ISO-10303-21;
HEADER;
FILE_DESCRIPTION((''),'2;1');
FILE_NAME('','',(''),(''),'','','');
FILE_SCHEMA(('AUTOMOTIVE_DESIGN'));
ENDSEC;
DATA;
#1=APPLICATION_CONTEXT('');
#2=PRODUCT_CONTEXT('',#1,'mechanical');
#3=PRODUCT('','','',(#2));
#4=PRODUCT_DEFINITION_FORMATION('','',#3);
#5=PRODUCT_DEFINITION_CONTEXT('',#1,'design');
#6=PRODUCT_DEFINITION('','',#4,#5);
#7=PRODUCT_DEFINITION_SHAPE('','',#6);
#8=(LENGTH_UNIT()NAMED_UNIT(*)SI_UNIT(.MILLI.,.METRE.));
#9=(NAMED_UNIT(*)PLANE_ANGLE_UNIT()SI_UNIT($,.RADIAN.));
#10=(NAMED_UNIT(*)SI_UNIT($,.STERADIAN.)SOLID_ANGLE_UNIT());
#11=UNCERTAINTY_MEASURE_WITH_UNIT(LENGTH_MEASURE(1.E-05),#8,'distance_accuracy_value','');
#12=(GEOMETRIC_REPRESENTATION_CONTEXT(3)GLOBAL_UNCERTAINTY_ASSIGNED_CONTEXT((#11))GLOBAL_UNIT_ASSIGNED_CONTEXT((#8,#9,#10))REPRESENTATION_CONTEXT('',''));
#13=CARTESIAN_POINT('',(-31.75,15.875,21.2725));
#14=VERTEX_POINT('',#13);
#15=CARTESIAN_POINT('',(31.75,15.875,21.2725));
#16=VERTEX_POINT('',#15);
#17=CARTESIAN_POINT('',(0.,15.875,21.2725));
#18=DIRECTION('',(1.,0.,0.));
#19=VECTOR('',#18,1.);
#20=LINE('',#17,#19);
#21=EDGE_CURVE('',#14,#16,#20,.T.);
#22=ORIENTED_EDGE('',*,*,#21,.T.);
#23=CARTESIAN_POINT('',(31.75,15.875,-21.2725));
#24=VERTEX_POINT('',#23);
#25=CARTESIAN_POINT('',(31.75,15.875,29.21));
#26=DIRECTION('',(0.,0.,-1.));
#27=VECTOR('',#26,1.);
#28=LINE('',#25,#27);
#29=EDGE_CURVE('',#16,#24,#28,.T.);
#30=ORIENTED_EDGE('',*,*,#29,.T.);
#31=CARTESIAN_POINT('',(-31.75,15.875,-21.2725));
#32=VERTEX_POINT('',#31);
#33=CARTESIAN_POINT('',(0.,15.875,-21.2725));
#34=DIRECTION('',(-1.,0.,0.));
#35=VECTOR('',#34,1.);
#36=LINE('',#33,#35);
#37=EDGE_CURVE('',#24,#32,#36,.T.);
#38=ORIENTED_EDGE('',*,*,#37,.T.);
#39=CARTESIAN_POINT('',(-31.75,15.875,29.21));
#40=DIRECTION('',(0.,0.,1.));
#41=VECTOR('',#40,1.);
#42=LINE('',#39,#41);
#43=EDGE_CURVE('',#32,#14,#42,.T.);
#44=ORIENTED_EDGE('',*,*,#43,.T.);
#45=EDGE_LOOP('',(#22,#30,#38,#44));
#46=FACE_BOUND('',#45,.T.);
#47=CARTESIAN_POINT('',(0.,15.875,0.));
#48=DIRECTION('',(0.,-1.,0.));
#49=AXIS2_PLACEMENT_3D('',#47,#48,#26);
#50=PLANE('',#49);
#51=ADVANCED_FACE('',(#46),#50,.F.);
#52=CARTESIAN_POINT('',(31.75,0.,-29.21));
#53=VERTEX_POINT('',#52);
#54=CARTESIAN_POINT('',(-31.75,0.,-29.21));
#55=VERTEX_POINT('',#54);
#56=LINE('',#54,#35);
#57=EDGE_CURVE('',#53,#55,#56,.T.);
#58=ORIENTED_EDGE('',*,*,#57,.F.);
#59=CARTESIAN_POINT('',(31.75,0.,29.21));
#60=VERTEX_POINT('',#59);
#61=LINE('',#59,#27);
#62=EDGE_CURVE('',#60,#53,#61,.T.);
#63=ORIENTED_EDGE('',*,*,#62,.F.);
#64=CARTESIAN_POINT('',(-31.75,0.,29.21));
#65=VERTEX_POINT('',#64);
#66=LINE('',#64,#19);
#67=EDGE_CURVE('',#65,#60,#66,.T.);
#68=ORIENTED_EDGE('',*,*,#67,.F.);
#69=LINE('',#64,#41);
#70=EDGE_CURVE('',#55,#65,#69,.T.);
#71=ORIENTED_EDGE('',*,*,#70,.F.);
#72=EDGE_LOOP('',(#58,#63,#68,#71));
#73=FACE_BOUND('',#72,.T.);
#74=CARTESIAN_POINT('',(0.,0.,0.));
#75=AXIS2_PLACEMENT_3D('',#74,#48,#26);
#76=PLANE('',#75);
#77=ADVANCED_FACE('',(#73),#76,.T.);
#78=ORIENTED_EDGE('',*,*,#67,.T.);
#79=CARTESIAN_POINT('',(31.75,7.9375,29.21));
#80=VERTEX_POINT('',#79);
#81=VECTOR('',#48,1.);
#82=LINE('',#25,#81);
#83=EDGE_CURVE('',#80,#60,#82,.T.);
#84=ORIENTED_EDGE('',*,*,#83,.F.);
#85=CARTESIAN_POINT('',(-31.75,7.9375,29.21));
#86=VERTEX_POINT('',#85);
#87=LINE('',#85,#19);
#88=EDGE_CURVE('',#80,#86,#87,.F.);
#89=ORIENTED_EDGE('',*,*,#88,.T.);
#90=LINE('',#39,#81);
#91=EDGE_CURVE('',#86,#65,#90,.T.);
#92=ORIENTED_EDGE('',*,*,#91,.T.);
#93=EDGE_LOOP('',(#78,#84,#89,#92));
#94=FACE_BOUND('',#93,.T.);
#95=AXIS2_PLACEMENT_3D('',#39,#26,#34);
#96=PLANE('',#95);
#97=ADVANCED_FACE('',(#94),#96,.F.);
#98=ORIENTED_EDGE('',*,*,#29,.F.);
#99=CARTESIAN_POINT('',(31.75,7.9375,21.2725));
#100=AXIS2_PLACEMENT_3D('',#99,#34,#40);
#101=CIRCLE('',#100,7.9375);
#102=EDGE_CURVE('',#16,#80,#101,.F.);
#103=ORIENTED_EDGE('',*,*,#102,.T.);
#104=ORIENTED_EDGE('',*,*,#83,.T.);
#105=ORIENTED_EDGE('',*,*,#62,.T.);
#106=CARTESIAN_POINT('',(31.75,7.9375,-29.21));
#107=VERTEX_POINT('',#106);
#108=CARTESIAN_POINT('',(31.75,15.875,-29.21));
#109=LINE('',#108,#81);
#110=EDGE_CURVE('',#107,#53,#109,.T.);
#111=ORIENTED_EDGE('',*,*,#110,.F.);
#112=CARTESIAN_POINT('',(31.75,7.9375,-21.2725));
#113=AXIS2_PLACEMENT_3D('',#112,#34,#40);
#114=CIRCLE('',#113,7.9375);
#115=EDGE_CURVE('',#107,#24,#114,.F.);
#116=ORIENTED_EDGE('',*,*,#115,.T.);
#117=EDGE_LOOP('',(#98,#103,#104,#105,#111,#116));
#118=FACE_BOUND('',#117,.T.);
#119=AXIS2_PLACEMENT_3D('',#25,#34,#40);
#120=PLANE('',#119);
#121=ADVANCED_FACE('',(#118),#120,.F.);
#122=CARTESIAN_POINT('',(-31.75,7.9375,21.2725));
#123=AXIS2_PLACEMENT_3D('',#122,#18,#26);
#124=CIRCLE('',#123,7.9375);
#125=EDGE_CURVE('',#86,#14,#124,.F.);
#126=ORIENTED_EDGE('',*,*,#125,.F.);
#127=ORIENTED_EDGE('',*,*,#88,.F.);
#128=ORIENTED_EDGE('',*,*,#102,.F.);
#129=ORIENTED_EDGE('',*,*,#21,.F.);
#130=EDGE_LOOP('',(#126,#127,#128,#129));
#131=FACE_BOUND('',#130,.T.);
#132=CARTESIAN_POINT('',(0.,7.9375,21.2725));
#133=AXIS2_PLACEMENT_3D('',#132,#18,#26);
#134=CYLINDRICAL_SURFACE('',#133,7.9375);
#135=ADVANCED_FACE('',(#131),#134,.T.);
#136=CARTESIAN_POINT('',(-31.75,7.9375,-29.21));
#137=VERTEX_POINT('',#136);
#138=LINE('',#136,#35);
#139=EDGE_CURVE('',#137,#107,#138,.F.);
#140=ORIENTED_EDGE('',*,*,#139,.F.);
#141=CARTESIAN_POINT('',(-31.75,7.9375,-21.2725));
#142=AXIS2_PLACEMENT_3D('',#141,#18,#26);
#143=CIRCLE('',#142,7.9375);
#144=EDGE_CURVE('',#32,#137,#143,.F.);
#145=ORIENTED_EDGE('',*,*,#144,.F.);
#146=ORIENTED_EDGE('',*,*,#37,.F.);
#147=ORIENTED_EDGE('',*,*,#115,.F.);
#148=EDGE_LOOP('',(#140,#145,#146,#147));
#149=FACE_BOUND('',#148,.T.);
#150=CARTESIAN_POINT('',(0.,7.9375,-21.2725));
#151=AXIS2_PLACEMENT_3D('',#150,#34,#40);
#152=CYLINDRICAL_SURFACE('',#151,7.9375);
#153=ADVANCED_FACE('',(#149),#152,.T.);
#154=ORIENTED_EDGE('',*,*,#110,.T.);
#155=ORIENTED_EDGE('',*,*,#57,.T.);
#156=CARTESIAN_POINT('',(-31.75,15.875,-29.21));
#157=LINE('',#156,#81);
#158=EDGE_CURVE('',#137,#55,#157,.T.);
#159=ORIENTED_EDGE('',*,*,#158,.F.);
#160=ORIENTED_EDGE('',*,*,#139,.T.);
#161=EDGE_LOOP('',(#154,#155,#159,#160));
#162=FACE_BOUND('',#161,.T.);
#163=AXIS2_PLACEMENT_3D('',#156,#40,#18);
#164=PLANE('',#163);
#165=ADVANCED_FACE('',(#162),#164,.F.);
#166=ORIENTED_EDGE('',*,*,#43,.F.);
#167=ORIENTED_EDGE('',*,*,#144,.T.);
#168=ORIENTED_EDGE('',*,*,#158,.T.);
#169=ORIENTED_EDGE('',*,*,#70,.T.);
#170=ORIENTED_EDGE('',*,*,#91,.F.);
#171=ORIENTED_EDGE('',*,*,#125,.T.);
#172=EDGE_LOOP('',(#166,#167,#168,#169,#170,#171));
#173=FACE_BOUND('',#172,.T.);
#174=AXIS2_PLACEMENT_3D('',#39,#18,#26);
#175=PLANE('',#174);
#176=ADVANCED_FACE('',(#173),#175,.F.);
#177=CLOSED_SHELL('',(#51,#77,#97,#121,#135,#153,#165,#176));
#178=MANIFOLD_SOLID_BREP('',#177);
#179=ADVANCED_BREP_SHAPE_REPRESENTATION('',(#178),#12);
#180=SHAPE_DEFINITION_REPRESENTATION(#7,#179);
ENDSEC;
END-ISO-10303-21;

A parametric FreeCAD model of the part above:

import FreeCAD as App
import Part
import Sketcher

V = App.Vector
Q = App.Units.Quantity


def edges_at(feature, points):
    """Names of the edges that pass closest to the given points."""
    edges = feature.Shape.Edges
    near = lambda p: min(range(len(edges)), key=lambda i: edges[i].distToShape(Part.Vertex(*p))[0])
    return sorted({f"Edge{near(p) + 1}" for p in points})


def add_polygon(sketch, points):
    """Adds a closed chain of lines whose ends are joined by coincident constraints."""
    first, n = sketch.GeometryCount, len(points)
    for a, b in zip(points, points[1:] + points[:1]):
        sketch.addGeometry(Part.LineSegment(App.Vector(*a, 0), App.Vector(*b, 0)), False)
    for i in range(n):
        sketch.addConstraint(Sketcher.Constraint("Coincident", first + i, 2, first + (i + 1) % n, 1))

doc = App.newDocument("Part")
params = doc.addObject("Spreadsheet::Sheet", "Params")
for row, (alias, value) in enumerate([
    ("sketch1_width", "2.5 in"),
    ("sketch1_height", "2.3 in"),
    ("pad1_length", "0.625 in"),
    ("fillet_radius", "0.3125 in"),
], start=1):
    params.set(f"A{row}", alias)
    params.set(f"B{row}", "=" + value)
    params.setAlias(f"B{row}", alias)

body = doc.addObject("PartDesign::Body", "Body")

sketch1 = body.newObject("Sketcher::SketchObject", "Sketch")
sketch1.AttachmentSupport = (doc.getObject("XZ_Plane"), [""])
sketch1.MapMode = "FlatFace"
add_polygon(sketch1, [(-32, -29), (-32, 29), (32, 29), (32, -29)])
sketch1.addConstraint([
    Sketcher.Constraint("Vertical", 0),
    Sketcher.Constraint("Horizontal", 1),
    Sketcher.Constraint("Vertical", 2),
    Sketcher.Constraint("Horizontal", 3),
    Sketcher.Constraint("Symmetric", 0, 2, 2, 2, -1, 1),
    Sketcher.Constraint("DistanceX", 1, 1, 1, 2, Q("2.5 in")),
    Sketcher.Constraint("DistanceY", 0, 1, 0, 2, Q("2.3 in")),
])
sketch1.setExpression("Constraints[9]", "Params.sketch1_width")
sketch1.setExpression("Constraints[10]", "Params.sketch1_height")
pad1 = body.newObject("PartDesign::Pad", "Pad")
pad1.Profile = sketch1
pad1.setExpression("Length", "Params.pad1_length")
pad1.Reversed = True
doc.recompute()

fillet = body.newObject("PartDesign::Fillet", "Fillet")
fillet.Base = (pad1, edges_at(pad1, [(0, 15.875, 29.21), (0, 15.875, -29.21)]))
fillet.setExpression("Radius", "Params.fillet_radius")

doc.recompute()
